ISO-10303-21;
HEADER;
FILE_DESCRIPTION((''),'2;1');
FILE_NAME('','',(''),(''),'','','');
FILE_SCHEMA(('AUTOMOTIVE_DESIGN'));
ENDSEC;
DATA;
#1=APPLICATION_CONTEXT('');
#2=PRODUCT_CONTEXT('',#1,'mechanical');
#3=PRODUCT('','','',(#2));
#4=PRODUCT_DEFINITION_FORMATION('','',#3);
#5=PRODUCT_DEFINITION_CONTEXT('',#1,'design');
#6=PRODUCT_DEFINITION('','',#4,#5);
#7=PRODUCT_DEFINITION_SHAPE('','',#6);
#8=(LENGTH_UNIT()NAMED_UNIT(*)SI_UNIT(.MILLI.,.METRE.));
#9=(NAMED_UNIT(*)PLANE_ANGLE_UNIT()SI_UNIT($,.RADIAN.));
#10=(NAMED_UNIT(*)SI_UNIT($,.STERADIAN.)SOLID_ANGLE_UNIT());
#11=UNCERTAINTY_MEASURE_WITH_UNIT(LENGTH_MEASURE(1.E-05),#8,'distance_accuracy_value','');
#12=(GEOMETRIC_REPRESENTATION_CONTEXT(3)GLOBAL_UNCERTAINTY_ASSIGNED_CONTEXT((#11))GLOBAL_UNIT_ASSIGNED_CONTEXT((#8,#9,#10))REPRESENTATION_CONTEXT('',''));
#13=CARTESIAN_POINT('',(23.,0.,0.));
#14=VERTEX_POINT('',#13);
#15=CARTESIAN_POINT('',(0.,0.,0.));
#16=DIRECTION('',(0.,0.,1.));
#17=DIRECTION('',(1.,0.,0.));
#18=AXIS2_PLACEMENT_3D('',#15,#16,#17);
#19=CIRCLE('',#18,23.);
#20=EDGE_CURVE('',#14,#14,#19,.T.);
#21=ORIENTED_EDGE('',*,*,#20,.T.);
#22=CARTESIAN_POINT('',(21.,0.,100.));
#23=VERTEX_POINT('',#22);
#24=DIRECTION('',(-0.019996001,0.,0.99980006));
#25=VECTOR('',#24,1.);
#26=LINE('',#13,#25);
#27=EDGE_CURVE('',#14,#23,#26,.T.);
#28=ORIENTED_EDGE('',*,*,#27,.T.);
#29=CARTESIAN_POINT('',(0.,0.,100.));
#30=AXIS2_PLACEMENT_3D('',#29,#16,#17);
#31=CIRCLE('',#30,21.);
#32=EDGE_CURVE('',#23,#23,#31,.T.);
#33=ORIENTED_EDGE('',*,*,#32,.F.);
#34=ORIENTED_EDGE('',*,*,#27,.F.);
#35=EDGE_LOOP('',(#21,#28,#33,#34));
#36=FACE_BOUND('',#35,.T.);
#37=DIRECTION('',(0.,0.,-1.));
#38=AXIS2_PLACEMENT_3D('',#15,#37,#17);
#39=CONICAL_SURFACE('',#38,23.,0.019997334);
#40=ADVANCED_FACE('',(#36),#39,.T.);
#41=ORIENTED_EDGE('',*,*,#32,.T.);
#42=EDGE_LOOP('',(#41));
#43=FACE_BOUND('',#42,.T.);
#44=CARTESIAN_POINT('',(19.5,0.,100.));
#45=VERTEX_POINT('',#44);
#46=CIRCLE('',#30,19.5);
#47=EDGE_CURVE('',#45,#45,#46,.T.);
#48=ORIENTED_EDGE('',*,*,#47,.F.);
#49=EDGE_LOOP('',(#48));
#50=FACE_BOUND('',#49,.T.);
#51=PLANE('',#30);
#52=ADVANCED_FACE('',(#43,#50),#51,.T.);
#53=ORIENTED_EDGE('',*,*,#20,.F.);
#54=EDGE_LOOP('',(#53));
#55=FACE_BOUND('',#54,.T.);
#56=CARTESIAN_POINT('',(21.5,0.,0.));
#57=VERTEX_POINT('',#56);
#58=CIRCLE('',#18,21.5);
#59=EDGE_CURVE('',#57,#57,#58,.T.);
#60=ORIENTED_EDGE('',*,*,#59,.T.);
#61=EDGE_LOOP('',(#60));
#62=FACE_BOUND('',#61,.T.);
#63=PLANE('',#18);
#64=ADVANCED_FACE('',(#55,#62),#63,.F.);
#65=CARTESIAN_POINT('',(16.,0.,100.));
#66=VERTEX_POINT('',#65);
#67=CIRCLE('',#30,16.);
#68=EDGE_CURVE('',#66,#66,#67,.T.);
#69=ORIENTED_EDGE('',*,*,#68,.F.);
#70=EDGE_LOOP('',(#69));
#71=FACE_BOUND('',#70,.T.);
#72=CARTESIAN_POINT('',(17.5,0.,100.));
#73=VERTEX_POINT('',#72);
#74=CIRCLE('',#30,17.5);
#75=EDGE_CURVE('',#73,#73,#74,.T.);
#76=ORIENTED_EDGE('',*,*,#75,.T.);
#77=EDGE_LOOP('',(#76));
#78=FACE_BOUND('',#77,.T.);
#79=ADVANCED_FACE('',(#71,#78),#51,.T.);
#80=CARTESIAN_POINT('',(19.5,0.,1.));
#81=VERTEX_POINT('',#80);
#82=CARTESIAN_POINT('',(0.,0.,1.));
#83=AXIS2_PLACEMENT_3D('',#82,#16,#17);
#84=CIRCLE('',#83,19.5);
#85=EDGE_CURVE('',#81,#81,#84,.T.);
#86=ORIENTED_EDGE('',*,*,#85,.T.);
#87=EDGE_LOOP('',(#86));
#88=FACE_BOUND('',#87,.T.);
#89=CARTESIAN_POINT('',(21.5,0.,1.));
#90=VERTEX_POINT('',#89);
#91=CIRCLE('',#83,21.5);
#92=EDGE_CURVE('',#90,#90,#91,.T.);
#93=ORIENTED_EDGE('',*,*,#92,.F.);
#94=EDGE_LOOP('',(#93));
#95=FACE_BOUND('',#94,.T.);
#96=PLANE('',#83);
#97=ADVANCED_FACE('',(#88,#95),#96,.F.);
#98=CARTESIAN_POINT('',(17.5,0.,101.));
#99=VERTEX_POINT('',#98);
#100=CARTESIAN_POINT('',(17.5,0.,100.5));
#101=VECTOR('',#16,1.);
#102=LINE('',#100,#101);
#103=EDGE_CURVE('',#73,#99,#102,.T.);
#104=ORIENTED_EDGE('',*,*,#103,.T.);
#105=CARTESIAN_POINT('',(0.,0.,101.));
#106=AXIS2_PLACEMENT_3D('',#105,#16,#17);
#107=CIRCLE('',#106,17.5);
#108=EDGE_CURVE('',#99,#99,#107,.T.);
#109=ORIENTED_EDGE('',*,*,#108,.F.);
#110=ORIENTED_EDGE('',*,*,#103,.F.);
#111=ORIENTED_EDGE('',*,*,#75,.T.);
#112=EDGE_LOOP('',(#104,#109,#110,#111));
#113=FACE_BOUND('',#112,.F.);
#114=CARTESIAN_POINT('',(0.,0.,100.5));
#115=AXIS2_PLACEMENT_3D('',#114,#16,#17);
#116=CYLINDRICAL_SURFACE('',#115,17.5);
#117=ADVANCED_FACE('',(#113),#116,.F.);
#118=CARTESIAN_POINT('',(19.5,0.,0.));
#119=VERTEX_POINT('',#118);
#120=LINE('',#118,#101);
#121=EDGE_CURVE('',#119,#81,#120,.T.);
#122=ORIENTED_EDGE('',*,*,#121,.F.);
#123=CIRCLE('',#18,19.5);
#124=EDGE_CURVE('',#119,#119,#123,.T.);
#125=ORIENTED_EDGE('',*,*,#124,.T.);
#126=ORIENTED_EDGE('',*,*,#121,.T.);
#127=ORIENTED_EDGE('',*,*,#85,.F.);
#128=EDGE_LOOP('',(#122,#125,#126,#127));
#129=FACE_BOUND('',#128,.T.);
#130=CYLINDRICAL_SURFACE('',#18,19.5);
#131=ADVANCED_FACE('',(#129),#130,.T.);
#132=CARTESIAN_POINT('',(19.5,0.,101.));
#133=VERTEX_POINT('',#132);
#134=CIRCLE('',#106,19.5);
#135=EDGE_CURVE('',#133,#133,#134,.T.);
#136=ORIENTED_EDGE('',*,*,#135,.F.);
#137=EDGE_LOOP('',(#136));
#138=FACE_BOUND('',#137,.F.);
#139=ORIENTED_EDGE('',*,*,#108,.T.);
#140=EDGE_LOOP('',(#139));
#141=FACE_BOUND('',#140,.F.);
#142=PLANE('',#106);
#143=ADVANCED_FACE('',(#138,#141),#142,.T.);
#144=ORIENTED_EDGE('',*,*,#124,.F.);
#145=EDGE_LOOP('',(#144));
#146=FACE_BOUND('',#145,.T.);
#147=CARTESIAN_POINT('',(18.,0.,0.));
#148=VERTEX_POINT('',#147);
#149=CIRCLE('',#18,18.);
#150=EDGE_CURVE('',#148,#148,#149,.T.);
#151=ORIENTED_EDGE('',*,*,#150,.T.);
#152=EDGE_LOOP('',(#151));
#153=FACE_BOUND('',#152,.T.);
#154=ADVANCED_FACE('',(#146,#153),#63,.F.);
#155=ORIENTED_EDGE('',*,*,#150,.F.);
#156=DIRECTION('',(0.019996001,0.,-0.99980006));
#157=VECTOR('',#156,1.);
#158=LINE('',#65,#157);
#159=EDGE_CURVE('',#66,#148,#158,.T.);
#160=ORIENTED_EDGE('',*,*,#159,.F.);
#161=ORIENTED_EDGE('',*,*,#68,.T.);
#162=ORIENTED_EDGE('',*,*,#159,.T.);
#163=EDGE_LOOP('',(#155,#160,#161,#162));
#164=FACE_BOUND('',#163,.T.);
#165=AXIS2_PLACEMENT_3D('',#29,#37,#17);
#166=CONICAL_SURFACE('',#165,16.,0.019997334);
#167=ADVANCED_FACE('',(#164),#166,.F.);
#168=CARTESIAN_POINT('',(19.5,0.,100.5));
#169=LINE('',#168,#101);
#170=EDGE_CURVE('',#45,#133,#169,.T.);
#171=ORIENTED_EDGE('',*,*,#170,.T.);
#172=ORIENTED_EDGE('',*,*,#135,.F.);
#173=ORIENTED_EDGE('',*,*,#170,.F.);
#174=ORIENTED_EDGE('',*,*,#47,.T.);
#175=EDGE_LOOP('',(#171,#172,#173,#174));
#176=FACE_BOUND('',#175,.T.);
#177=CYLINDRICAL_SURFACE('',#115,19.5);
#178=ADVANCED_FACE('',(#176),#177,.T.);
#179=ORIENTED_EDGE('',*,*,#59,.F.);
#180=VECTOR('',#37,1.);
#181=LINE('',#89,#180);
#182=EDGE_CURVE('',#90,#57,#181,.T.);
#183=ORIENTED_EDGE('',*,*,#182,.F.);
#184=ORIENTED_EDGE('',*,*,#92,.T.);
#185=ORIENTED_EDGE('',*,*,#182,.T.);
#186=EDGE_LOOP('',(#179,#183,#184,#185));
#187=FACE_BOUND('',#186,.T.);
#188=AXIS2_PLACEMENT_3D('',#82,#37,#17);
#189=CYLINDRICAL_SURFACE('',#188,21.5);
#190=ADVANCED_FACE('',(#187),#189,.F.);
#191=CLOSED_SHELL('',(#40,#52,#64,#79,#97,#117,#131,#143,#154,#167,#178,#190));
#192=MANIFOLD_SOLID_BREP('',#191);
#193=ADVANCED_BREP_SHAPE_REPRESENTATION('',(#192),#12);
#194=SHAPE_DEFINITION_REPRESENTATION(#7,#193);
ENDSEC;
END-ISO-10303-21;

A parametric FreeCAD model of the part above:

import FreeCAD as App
import Part
import Sketcher
Q = App.Units.Quantity


def add_polygon(sketch, points):
    """Adds a closed chain of lines whose ends are joined by coincident constraints."""
    first, n = sketch.GeometryCount, len(points)
    for a, b in zip(points, points[1:] + points[:1]):
        sketch.addGeometry(Part.LineSegment(App.Vector(*a, 0), App.Vector(*b, 0)), False)
    for i in range(n):
        sketch.addConstraint(Sketcher.Constraint("Coincident", first + i, 2, first + (i + 1) % n, 1))

doc = App.newDocument("Part")
body = doc.addObject("PartDesign::Body", "Body")

# Sketch on XZ plane
sketch1 = doc.addObject("Sketcher::SketchObject", "Sketch")
body.addObject(sketch1)
sketch1.AttachmentSupport = (doc.XZ_Plane, [""])
sketch1.MapMode = "FlatFace"
add_polygon(sketch1, [(16, 100), (18, 0), (19.5, 0), (19.5, 1), (21.5, 1), (21.5, 0), (23, 0), (21, 100), (19.5, 100), (19.5, 101), (17.5, 101), (17.5, 100)])  # lines 0-11
sketch1.addConstraint(Sketcher.Constraint("Horizontal", 1))
sketch1.addConstraint(Sketcher.Constraint("Vertical", 2))
sketch1.addConstraint(Sketcher.Constraint("Horizontal", 3))
sketch1.addConstraint(Sketcher.Constraint("Vertical", 4))
sketch1.addConstraint(Sketcher.Constraint("Horizontal", 5))
sketch1.addConstraint(Sketcher.Constraint("Horizontal", 7))
sketch1.addConstraint(Sketcher.Constraint("Vertical", 8))
sketch1.addConstraint(Sketcher.Constraint("Horizontal", 9))
sketch1.addConstraint(Sketcher.Constraint("Vertical", 10))
sketch1.addConstraint(Sketcher.Constraint("Horizontal", 11))
sketch1.addConstraint(Sketcher.Constraint("PointOnObject", 0, 2, -1))
sketch1.addConstraint(Sketcher.Constraint("PointOnObject", 4, 2, -1))
sketch1.addConstraint(Sketcher.Constraint("Parallel", 0, 6))
sketch1.addConstraint(Sketcher.Constraint("Horizontal", 7, 2, 10, 2))
sketch1.addConstraint(Sketcher.Constraint("Vertical", 2, 2, 7, 2))
sketch1.addConstraint(Sketcher.Constraint("Equal", 1, 5))
sketch1.addConstraint(Sketcher.Constraint("Equal", 5, 7))
sketch1.addConstraint(Sketcher.Constraint("Equal", 3, 9))
sketch1.addConstraint(Sketcher.Constraint("Equal", 4, 8))
sketch1.addConstraint(Sketcher.Constraint("DistanceX", 3, 1, 3, 2, Q("2 mm")))
sketch1.addConstraint(Sketcher.Constraint("DistanceY", 2, 1, 2, 2, Q("1 mm")))
sketch1.addConstraint(Sketcher.Constraint("DistanceX", 1, 1, 1, 2, Q("1.5 mm")))
sketch1.addConstraint(Sketcher.Constraint("DistanceX", -1, 1, 0, 2, Q("18 mm")))
sketch1.addConstraint(Sketcher.Constraint("DistanceY", -1, 1, 6, 2, Q("100 mm")))
revolution = doc.addObject("PartDesign::Revolution", "Revolution")
body.addObject(revolution)
revolution.Profile = sketch1
revolution.ReferenceAxis = (sketch1, ["V_Axis"])
revolution.Angle = 360

# Sketch on XZ plane
sketch2 = doc.addObject("Sketcher::SketchObject", "Sketch001")
body.addObject(sketch2)
sketch2.AttachmentSupport = (doc.XZ_Plane, [""])
sketch2.MapMode = "FlatFace"
add_polygon(sketch2, [(19.5, 1), (19.5, 0), (21.5, 0), (21.5, 1)])  # lines 0-3
sketch2.addConstraint(Sketcher.Constraint("Vertical", 0))
sketch2.addConstraint(Sketcher.Constraint("Horizontal", 1))
sketch2.addConstraint(Sketcher.Constraint("Vertical", 2))
sketch2.addConstraint(Sketcher.Constraint("Horizontal", 3))
sketch2.addConstraint(Sketcher.Constraint("PointOnObject", 0, 2, -1))
sketch2.addConstraint(Sketcher.Constraint("DistanceX", 1, 1, 1, 2, Q("2 mm")))
sketch2.addConstraint(Sketcher.Constraint("DistanceY", 0, 2, 0, 1, Q("1 mm")))
sketch2.addConstraint(Sketcher.Constraint("DistanceX", -1, 1, 0, 2, Q("19.5 mm")))
groove = doc.addObject("PartDesign::Groove", "Groove")
body.addObject(groove)
groove.Profile = sketch2
groove.ReferenceAxis = (sketch2, ["V_Axis"])
groove.Angle = 360

doc.recompute()
